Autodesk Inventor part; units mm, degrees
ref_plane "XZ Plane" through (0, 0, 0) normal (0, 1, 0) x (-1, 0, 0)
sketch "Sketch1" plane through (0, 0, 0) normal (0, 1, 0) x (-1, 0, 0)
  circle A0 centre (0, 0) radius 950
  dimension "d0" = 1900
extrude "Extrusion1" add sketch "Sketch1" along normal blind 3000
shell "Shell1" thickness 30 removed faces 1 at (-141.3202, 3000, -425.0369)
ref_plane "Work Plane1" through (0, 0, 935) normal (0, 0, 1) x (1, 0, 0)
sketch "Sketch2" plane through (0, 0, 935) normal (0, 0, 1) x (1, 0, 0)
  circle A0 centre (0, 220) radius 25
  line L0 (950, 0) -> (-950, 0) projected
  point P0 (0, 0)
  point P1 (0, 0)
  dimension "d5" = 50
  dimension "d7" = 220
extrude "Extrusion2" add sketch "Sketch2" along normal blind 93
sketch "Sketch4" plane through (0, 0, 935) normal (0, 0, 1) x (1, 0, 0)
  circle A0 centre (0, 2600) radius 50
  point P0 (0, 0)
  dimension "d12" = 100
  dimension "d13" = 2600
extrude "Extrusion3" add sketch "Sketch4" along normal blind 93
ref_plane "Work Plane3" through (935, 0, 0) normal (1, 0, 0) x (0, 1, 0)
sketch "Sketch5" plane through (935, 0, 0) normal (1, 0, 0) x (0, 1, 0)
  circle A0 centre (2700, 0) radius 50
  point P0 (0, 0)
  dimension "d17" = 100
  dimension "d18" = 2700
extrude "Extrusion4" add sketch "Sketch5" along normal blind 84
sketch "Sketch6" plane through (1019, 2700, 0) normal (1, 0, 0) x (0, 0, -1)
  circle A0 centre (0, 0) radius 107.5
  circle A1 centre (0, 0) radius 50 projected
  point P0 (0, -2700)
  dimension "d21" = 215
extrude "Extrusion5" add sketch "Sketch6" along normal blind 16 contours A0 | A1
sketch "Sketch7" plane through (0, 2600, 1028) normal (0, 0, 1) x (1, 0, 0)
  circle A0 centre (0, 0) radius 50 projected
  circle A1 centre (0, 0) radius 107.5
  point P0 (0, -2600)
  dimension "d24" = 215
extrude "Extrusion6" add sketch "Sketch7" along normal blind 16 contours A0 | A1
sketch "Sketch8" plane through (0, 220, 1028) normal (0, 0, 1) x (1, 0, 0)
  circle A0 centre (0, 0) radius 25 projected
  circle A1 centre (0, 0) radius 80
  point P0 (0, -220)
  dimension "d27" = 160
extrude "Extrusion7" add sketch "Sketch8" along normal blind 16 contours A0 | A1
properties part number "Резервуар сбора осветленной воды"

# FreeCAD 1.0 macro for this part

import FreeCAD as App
import Part
import Sketcher


def faces_at(feature, points):
    """Names of the faces that lie closest to the given points."""
    faces = feature.Shape.Faces
    near = lambda p: min(range(len(faces)), key=lambda i: faces[i].distToShape(Part.Vertex(*p))[0])
    return sorted({f"Face{near(p) + 1}" for p in points})

doc = App.newDocument("Part")
body = doc.addObject("PartDesign::Body", "Body")

# Sketch on XZ plane
sketch1 = doc.addObject("Sketcher::SketchObject", "Sketch")
body.addObject(sketch1)
sketch1.AttachmentSupport = (doc.XZ_Plane, [""])
sketch1.MapMode = "FlatFace"
sketch1.addGeometry(Part.Circle(App.Vector(0, 0, 0), App.Vector(0, 0, 1), 950), False)
sketch1.addConstraint([
    Sketcher.Constraint("Coincident", 0, 3, -1, 1),
    Sketcher.Constraint("Diameter", 0, 1900.0),
])
pad1 = doc.addObject("PartDesign::Pad", "Pad")
body.addObject(pad1)
pad1.Profile = sketch1
pad1.Length = 3000
pad1.Reversed = True
doc.recompute()

thickness = doc.addObject("PartDesign::Thickness", "Thickness")
body.addObject(thickness)
thickness.Base = (pad1, faces_at(pad1, [(-141.32, 3000, -425.037)]))
thickness.Value = 30
thickness.Reversed = True
thickness.Join = "Intersection"

# Sketch on XY plane
sketch2 = doc.addObject("Sketcher::SketchObject", "Sketch001")
body.addObject(sketch2)
sketch2.AttachmentSupport = (doc.XY_Plane, [""])
sketch2.MapMode = "FlatFace"
sketch2.AttachmentOffset = App.Placement(App.Vector(0, 0, 935), App.Rotation())
sketch2.addGeometry(Part.Circle(App.Vector(0, 220, 0), App.Vector(0, 0, 1), 25), False)
sketch2.addConstraint([
    Sketcher.Constraint("PointOnObject", 0, 3, -2),
    Sketcher.Constraint("Diameter", 0, 50.0),
    Sketcher.Constraint("DistanceY", -1, 1, 0, 3, 220.0),
])
pad2 = doc.addObject("PartDesign::Pad", "Pad001")
body.addObject(pad2)
pad2.Profile = sketch2
pad2.Length = 93

# Sketch on XY plane
sketch3 = doc.addObject("Sketcher::SketchObject", "Sketch002")
body.addObject(sketch3)
sketch3.AttachmentSupport = (doc.XY_Plane, [""])
sketch3.MapMode = "FlatFace"
sketch3.AttachmentOffset = App.Placement(App.Vector(0, 0, 935), App.Rotation())
sketch3.addGeometry(Part.Circle(App.Vector(0, 2600, 0), App.Vector(0, 0, 1), 50), False)
sketch3.addConstraint([
    Sketcher.Constraint("PointOnObject", 0, 3, -2),
    Sketcher.Constraint("Diameter", 0, 100.0),
    Sketcher.Constraint("DistanceY", -1, 1, 0, 3, 2600.0),
])
pad3 = doc.addObject("PartDesign::Pad", "Pad002")
body.addObject(pad3)
pad3.Profile = sketch3
pad3.Length = 93

# Sketch on YZ plane
sketch4 = doc.addObject("Sketcher::SketchObject", "Sketch003")
body.addObject(sketch4)
sketch4.AttachmentSupport = (doc.YZ_Plane, [""])
sketch4.MapMode = "FlatFace"
sketch4.AttachmentOffset = App.Placement(App.Vector(0, 0, 935), App.Rotation())
sketch4.addGeometry(Part.Circle(App.Vector(2700, 0, 0), App.Vector(0, 0, 1), 50), False)
sketch4.addConstraint([
    Sketcher.Constraint("PointOnObject", 0, 3, -1),
    Sketcher.Constraint("Diameter", 0, 100.0),
    Sketcher.Constraint("DistanceX", -1, 1, 0, 3, 2700.0),
])
pad4 = doc.addObject("PartDesign::Pad", "Pad003")
body.addObject(pad4)
pad4.Profile = sketch4
pad4.Length = 84

# Sketch on YZ plane
sketch5 = doc.addObject("Sketcher::SketchObject", "Sketch004")
body.addObject(sketch5)
sketch5.AttachmentSupport = (doc.YZ_Plane, [""])
sketch5.MapMode = "FlatFace"
sketch5.AttachmentOffset = App.Placement(App.Vector(0, 0, 1019), App.Rotation())
sketch5.addGeometry(Part.Circle(App.Vector(2700, 0, 0), App.Vector(0, 0, 1), 107.5), False)
sketch5.addConstraint([
    Sketcher.Constraint("PointOnObject", 0, 3, -1),
    Sketcher.Constraint("Diameter", 0, 215.0),
    Sketcher.Constraint("DistanceX", -1, 1, 0, 3, 2700.0),
])
pad5 = doc.addObject("PartDesign::Pad", "Pad004")
body.addObject(pad5)
pad5.Profile = sketch5
pad5.Length = 16

# Sketch on XY plane
sketch6 = doc.addObject("Sketcher::SketchObject", "Sketch005")
body.addObject(sketch6)
sketch6.AttachmentSupport = (doc.XY_Plane, [""])
sketch6.MapMode = "FlatFace"
sketch6.AttachmentOffset = App.Placement(App.Vector(0, 0, 1028), App.Rotation())
sketch6.addGeometry(Part.Circle(App.Vector(0, 2600, 0), App.Vector(0, 0, 1), 107.5), False)
sketch6.addConstraint([
    Sketcher.Constraint("PointOnObject", 0, 3, -2),
    Sketcher.Constraint("Diameter", 0, 215.0),
    Sketcher.Constraint("DistanceY", -1, 1, 0, 3, 2600.0),
])
pad6 = doc.addObject("PartDesign::Pad", "Pad005")
body.addObject(pad6)
pad6.Profile = sketch6
pad6.Length = 16

# Sketch on XY plane
sketch7 = doc.addObject("Sketcher::SketchObject", "Sketch006")
body.addObject(sketch7)
sketch7.AttachmentSupport = (doc.XY_Plane, [""])
sketch7.MapMode = "FlatFace"
sketch7.AttachmentOffset = App.Placement(App.Vector(0, 0, 1028), App.Rotation())
sketch7.addGeometry(Part.Circle(App.Vector(0, 220, 0), App.Vector(0, 0, 1), 80), False)
sketch7.addConstraint([
    Sketcher.Constraint("PointOnObject", 0, 3, -2),
    Sketcher.Constraint("Diameter", 0, 160.0),
    Sketcher.Constraint("DistanceY", -1, 1, 0, 3, 220.0),
])
pad7 = doc.addObject("PartDesign::Pad", "Pad006")
body.addObject(pad7)
pad7.Profile = sketch7
pad7.Length = 16

doc.recompute()
